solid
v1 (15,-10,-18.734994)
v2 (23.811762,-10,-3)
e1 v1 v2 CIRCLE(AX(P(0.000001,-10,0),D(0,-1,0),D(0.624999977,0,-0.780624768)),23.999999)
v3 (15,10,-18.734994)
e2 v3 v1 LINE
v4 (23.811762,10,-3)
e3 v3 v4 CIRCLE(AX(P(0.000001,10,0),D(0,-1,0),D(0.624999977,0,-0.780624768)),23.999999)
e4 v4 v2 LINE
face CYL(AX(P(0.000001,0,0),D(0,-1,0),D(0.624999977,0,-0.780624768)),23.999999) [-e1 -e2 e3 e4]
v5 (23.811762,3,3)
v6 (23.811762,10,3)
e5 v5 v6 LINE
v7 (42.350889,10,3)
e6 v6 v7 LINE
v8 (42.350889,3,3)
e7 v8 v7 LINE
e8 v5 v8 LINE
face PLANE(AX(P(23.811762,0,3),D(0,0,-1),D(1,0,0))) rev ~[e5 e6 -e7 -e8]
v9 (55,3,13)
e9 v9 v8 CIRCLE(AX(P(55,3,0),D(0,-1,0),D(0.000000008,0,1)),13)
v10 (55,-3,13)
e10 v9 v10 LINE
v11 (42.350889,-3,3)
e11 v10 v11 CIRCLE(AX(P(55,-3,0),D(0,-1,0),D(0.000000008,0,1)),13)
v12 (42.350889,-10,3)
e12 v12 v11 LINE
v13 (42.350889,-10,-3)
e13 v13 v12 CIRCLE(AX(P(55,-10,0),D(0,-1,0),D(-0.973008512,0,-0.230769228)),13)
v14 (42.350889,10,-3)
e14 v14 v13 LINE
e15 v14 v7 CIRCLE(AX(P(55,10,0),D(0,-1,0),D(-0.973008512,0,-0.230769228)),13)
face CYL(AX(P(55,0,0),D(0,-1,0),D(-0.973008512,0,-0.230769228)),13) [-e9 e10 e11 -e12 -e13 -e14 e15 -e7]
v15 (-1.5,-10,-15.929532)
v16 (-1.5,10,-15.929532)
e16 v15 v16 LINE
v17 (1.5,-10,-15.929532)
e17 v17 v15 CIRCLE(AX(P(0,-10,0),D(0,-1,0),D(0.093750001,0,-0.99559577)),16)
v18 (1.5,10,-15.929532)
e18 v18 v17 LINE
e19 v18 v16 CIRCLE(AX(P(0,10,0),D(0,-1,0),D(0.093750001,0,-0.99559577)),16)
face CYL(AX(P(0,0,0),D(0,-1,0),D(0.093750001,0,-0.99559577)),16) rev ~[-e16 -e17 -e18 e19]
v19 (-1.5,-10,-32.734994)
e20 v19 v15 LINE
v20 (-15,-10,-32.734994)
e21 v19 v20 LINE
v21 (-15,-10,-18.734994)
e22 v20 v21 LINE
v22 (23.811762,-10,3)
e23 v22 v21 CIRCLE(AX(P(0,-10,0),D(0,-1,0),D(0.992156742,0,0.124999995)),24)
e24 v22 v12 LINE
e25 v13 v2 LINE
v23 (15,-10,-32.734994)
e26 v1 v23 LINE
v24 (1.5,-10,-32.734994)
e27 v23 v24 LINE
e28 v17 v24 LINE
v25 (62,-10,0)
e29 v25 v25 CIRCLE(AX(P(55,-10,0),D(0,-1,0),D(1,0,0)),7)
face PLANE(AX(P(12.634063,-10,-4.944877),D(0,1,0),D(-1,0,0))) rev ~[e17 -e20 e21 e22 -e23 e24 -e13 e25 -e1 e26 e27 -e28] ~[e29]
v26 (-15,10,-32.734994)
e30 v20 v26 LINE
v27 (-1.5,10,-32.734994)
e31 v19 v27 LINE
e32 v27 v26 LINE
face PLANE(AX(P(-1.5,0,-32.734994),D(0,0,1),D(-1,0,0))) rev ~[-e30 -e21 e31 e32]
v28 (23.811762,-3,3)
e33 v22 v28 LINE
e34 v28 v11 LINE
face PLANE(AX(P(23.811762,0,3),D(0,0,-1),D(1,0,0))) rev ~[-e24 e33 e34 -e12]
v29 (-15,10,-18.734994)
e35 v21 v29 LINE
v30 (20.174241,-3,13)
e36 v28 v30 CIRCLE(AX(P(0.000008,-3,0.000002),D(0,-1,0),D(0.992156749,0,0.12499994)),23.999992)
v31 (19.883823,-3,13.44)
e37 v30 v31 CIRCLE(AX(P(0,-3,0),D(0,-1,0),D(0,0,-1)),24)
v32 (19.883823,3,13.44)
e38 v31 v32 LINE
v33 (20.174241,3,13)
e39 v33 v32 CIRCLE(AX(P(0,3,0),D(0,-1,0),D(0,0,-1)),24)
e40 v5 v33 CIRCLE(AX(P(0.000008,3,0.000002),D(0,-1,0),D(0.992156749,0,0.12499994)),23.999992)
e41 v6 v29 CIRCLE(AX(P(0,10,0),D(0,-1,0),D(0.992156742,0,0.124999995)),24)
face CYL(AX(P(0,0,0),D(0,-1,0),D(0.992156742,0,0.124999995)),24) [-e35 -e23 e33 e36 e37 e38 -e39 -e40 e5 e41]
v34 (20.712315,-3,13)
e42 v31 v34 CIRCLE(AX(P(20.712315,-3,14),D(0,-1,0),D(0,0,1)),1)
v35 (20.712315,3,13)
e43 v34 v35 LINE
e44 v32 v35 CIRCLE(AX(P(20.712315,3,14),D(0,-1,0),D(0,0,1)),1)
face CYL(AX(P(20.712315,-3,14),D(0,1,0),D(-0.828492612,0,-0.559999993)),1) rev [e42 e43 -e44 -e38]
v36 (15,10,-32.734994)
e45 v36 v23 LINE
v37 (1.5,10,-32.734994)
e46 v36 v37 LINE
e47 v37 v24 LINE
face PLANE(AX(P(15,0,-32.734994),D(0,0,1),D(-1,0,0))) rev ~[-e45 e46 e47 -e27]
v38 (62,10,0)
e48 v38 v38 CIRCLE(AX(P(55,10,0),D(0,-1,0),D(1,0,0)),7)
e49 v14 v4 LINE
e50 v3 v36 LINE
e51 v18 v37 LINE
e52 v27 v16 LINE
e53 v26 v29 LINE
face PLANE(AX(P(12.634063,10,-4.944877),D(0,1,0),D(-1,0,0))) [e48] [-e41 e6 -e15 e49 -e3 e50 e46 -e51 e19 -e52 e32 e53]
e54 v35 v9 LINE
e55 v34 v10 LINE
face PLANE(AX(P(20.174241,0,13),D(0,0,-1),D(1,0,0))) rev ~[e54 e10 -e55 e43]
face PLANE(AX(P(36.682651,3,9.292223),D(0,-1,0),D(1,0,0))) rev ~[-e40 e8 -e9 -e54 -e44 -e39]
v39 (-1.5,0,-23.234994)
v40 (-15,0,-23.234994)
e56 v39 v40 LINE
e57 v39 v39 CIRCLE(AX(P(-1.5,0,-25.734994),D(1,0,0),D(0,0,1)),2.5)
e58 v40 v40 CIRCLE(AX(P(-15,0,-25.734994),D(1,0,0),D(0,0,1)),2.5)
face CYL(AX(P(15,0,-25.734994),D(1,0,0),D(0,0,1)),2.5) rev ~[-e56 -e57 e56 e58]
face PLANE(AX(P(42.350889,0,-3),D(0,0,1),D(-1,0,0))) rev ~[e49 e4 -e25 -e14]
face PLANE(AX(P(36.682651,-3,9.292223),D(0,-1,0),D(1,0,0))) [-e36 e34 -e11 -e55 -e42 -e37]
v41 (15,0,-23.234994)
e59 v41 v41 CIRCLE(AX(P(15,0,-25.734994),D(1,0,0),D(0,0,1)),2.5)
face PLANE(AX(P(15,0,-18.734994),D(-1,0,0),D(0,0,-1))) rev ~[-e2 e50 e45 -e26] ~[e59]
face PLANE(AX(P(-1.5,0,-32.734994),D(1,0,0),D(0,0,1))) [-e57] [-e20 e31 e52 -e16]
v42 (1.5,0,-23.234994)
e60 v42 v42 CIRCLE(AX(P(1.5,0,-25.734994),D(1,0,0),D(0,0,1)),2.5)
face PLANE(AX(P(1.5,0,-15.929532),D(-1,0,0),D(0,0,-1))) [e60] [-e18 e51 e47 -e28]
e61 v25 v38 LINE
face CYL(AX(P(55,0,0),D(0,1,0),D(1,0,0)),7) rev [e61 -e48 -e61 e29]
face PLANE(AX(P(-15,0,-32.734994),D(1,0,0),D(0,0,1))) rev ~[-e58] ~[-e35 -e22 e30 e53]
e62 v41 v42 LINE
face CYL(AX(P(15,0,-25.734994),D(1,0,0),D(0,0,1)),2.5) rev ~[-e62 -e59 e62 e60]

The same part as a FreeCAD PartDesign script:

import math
import FreeCAD as App
import Part
import Sketcher
from FreeCAD import Vector


def edges_at(feature, points):
    """Names of the edges that pass closest to the given points."""
    edges = feature.Shape.Edges
    near = lambda p: min(range(len(edges)), key=lambda i: edges[i].distToShape(Part.Vertex(*p))[0])
    return sorted({f"Edge{near(p) + 1}" for p in points})

doc = App.newDocument("Part")
body = doc.addObject("PartDesign::Body", "Body")

sketch1 = body.newObject("Sketcher::SketchObject", "Sketch")
sketch1.AttachmentSupport = (doc.getObject("XZ_Plane"), [""])
sketch1.MapMode = "FlatFace"
sketch1.addGeometry([
    Part.ArcOfCircle(Part.Circle(Vector(0, 0, 0), Vector(0, 0, 1), 16), math.radians(-85), math.radians(265)),
    Part.LineSegment(Vector(1.5, -15.9, 0), Vector(1.5, -32.7, 0)),
    Part.LineSegment(Vector(1.5, -32.7, 0), Vector(15, -32.7, 0)),
    Part.LineSegment(Vector(15, -32.7, 0), Vector(15, -18.7, 0)),
    Part.ArcOfCircle(Part.Circle(Vector(0, 0, 0), Vector(0, 0, 1), 24), math.radians(-51), math.radians(-7)),
    Part.LineSegment(Vector(23.8, -3, 0), Vector(42.4, -3, 0)),
    Part.ArcOfCircle(Part.Circle(Vector(55, 0, 0), Vector(0, 0, 1), 13), math.radians(-167), math.radians(167)),
    Part.LineSegment(Vector(42.4, 3, 0), Vector(23.8, 3, 0)),
    Part.ArcOfCircle(Part.Circle(Vector(0, 0, 0), Vector(0, 0, 1), 24), math.radians(7), math.radians(231)),
    Part.LineSegment(Vector(-15, -18.7, 0), Vector(-15, -32.7, 0)),
    Part.LineSegment(Vector(-15, -32.7, 0), Vector(-1.5, -32.7, 0)),
    Part.LineSegment(Vector(-1.5, -32.7, 0), Vector(-1.5, -15.9, 0)),
    Part.Circle(Vector(55, 0, 0), Vector(0, 0, 1), 7),
], False)
sketch1.addConstraint([
    Sketcher.Constraint("Coincident", 0, 1, 1, 1),
    Sketcher.Constraint("Coincident", 1, 2, 2, 1),
    Sketcher.Constraint("Coincident", 2, 2, 3, 1),
    Sketcher.Constraint("Coincident", 3, 2, 4, 1),
    Sketcher.Constraint("Coincident", 4, 2, 5, 1),
    Sketcher.Constraint("Coincident", 5, 2, 6, 1),
    Sketcher.Constraint("Coincident", 6, 2, 7, 1),
    Sketcher.Constraint("Coincident", 7, 2, 8, 1),
    Sketcher.Constraint("Coincident", 8, 2, 9, 1),
    Sketcher.Constraint("Coincident", 9, 2, 10, 1),
    Sketcher.Constraint("Coincident", 10, 2, 11, 1),
    Sketcher.Constraint("Coincident", 11, 2, 0, 2),
    Sketcher.Constraint("Vertical", 1),
    Sketcher.Constraint("Horizontal", 2),
    Sketcher.Constraint("Vertical", 3),
    Sketcher.Constraint("Horizontal", 5),
    Sketcher.Constraint("Horizontal", 7),
    Sketcher.Constraint("Vertical", 9),
    Sketcher.Constraint("Horizontal", 10),
    Sketcher.Constraint("Vertical", 11),
    Sketcher.Constraint("Coincident", 0, 3, -1, 1),
    Sketcher.Constraint("Coincident", 4, 3, -1, 1),
    Sketcher.Constraint("Coincident", 8, 3, -1, 1),
    Sketcher.Constraint("Coincident", 12, 3, 6, 3),
    Sketcher.Constraint("Equal", 4, 8),
    Sketcher.Constraint("Symmetric", 2, 2, 9, 2, -2),
    Sketcher.Constraint("Symmetric", 5, 2, 6, 2, -1),
    Sketcher.Constraint("Horizontal", 0, 1, 11, 2),
    Sketcher.Constraint("Diameter", 12, 14.0),
    Sketcher.Constraint("Radius", 0, 16.0),
    Sketcher.Constraint("Radius", 4, 23.999999),
    Sketcher.Constraint("Radius", 6, 13.0),
    Sketcher.Constraint("DistanceY", 3, 1, 3, 2, 14.0),
    Sketcher.Constraint("DistanceX", 2, 1, 2, 2, 13.5),
    Sketcher.Constraint("DistanceX", -1, 1, 6, 3, 55.0),
    Sketcher.Constraint("DistanceX", -1, 1, 2, 2, 15.0),
    Sketcher.Constraint("DistanceY", 4, 2, -1, 1, 3.0),
])
pad1 = body.newObject("PartDesign::Pad", "Pad")
pad1.Profile = sketch1
pad1.Length = 20
pad1.Midplane = True

sketch2 = body.newObject("Sketcher::SketchObject", "Sketch001")
sketch2.AttachmentSupport = (doc.getObject("YZ_Plane"), [""])
sketch2.MapMode = "FlatFace"
sketch2.AttachmentOffset = App.Placement(Vector(0, 0, 15), App.Rotation())
sketch2.addGeometry(Part.Circle(Vector(0, -25.7, 0), Vector(0, 0, 1), 2.5), False)
sketch2.addConstraint([
    Sketcher.Constraint("PointOnObject", 0, 3, -2),
    Sketcher.Constraint("Diameter", 0, 5.0),
    Sketcher.Constraint("DistanceY", 0, 3, -1, 1, 25.734994),
])
pocket1 = body.newObject("PartDesign::Pocket", "Pocket")
pocket1.Profile = sketch2
pocket1.Type = "ThroughAll"
body2 = doc.addObject("PartDesign::Body", "Body001")

sketch3 = body2.newObject("Sketcher::SketchObject", "Sketch002")
sketch3.AttachmentSupport = (doc.getObject("XZ_Plane001"), [""])
sketch3.MapMode = "FlatFace"
sketch3.addGeometry([
    Part.LineSegment(Vector(24, 3, 0), Vector(42, 3, 0)),
    Part.ArcOfCircle(Part.Circle(Vector(55, 0, 0), Vector(0, 0, 1), 13), math.radians(90), math.radians(167)),
    Part.LineSegment(Vector(55, 13, 0), Vector(20, 13, 0)),
    Part.ArcOfCircle(Part.Circle(Vector(0, 0, 0), Vector(0, 0, 1), 24), math.radians(7), math.radians(33)),
], False)
sketch3.addConstraint([
    Sketcher.Constraint("Coincident", 0, 2, 1, 2),
    Sketcher.Constraint("Tangent", 1, 1, 2, 1),
    Sketcher.Constraint("Coincident", 2, 2, 3, 2),
    Sketcher.Constraint("Coincident", 3, 1, 0, 1),
    Sketcher.Constraint("Horizontal", 0),
    Sketcher.Constraint("Horizontal", 2),
    Sketcher.Constraint("Coincident", 3, 3, -1, 1),
    Sketcher.Constraint("PointOnObject", 1, 3, -1),
    Sketcher.Constraint("Radius", 1, 13.0),
    Sketcher.Constraint("DistanceX", -1, 1, 1, 3, 55.0),
    Sketcher.Constraint("DistanceY", -1, 1, 0, 2, 3.0),
    Sketcher.Constraint("Radius", 3, 23.999992),
])
pad2 = body2.newObject("PartDesign::Pad", "Pad001")
pad2.Profile = sketch3
pad2.Length = 6
pad2.Midplane = True
doc.recompute()

boolean = body2.newObject("PartDesign::Boolean", "Boolean")
boolean.Type = "Fuse"
boolean.addObjects([body])
doc.recompute()

fillet = body2.newObject("PartDesign::Fillet", "Fillet")
fillet.Base = (boolean, edges_at(boolean, [(20.174, 0, 13)]))
fillet.Radius = 1

doc.recompute()
